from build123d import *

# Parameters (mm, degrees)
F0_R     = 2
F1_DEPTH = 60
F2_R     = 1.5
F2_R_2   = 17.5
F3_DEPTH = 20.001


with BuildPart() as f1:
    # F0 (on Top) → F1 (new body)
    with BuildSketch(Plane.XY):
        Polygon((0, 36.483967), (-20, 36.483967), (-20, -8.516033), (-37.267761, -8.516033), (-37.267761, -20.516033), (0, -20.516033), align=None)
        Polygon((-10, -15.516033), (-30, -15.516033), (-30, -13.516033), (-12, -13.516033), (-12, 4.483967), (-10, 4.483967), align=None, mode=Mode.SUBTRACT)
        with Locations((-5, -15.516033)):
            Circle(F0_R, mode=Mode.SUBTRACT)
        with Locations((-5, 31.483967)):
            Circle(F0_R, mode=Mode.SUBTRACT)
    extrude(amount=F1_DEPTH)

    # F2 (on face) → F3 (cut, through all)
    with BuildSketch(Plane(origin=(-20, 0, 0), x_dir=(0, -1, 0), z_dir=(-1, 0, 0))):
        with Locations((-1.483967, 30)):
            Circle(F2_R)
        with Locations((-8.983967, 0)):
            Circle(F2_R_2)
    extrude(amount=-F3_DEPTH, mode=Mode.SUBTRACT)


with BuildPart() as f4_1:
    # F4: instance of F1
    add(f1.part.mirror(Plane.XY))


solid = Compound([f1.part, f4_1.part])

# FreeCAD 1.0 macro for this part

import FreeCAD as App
import Part
import Sketcher
Q = App.Units.Quantity


def add_polygon(sketch, points):
    """Adds a closed chain of lines whose ends are joined by coincident constraints."""
    first, n = sketch.GeometryCount, len(points)
    for a, b in zip(points, points[1:] + points[:1]):
        sketch.addGeometry(Part.LineSegment(App.Vector(*a, 0), App.Vector(*b, 0)), False)
    for i in range(n):
        sketch.addConstraint(Sketcher.Constraint("Coincident", first + i, 2, first + (i + 1) % n, 1))

doc = App.newDocument("Part")
body = doc.addObject("PartDesign::Body", "Body")

# Sketch on XY plane
sketch1 = doc.addObject("Sketcher::SketchObject", "Sketch")
body.addObject(sketch1)
sketch1.AttachmentSupport = (doc.XY_Plane, [""])
sketch1.MapMode = "FlatFace"
add_polygon(sketch1, [(0, 36.483967), (-20, 36.483967), (-20, -8.516033), (-37.267761, -8.516033), (-37.267761, -20.516033), (0, -20.516033)])  # lines 0-5
add_polygon(sketch1, [(-10, 4.483967), (-10, -15.516033), (-30, -15.516033), (-30, -13.516033), (-12, -13.516033), (-12, 4.483967)])  # lines 6-11
sketch1.addGeometry(Part.Circle(App.Vector(-5, -15.516033, 0), App.Vector(0, 0, 1), 2), False)  # 12
sketch1.addGeometry(Part.Circle(App.Vector(-5, 31.483967, 0), App.Vector(0, 0, 1), 2), False)  # 13
sketch1.addConstraint([
    Sketcher.Constraint("Horizontal", 0),
    Sketcher.Constraint("Vertical", 1),
    Sketcher.Constraint("Horizontal", 2),
    Sketcher.Constraint("Vertical", 3),
    Sketcher.Constraint("Horizontal", 4),
    Sketcher.Constraint("Vertical", 5),
    Sketcher.Constraint("Vertical", 6),
    Sketcher.Constraint("Horizontal", 7),
    Sketcher.Constraint("Vertical", 8),
    Sketcher.Constraint("Horizontal", 9),
    Sketcher.Constraint("Vertical", 10),
    Sketcher.Constraint("Horizontal", 11),
    Sketcher.Constraint("Equal", 12, 13),
    Sketcher.Constraint("PointOnObject", 4, 2, -2),
    Sketcher.Constraint("Horizontal", 12, 3, 6, 2),
    Sketcher.Constraint("Vertical", 12, 3, 13, 3),
    Sketcher.Constraint("Equal", 0, 7),
    Sketcher.Constraint("Equal", 7, 6),
    Sketcher.Constraint("Equal", 11, 8),
    Sketcher.Constraint("Diameter", 12, Q("4 mm")),
    Sketcher.Constraint("DistanceX", 0, 2, 0, 1, Q("20 mm")),
    Sketcher.Constraint("DistanceX", 9, 1, 9, 2, Q("18 mm")),
    Sketcher.Constraint("DistanceY", 1, 2, 1, 1, Q("45 mm")),
    Sketcher.Constraint("DistanceY", 3, 2, 3, 1, Q("12 mm")),
    Sketcher.Constraint("DistanceX", 12, 3, -1, 1, Q("5 mm")),
    Sketcher.Constraint("DistanceX", 6, 2, -1, 1, Q("10 mm")),
    Sketcher.Constraint("DistanceY", 12, 3, 13, 3, Q("47 mm")),
    Sketcher.Constraint("DistanceY", 13, 3, 0, 2, Q("5 mm")),
    Sketcher.Constraint("DistanceX", 2, 2, 2, 1, Q("17.267761 mm")),
    Sketcher.Constraint("DistanceY", 12, 3, -1, 1, Q("15.516033 mm")),
])
pad1 = doc.addObject("PartDesign::Pad", "Pad")
body.addObject(pad1)
pad1.Profile = sketch1
pad1.Length = 60

# Sketch on YZ plane
sketch2 = doc.addObject("Sketcher::SketchObject", "Sketch001")
body.addObject(sketch2)
sketch2.AttachmentSupport = (doc.YZ_Plane, [""])
sketch2.MapMode = "FlatFace"
sketch2.AttachmentOffset = App.Placement(App.Vector(0, 0, -20), App.Rotation())
sketch2.addGeometry([
    Part.Circle(App.Vector(1.483967, 30, 0), App.Vector(0, 0, 1), 1.5),
    Part.Circle(App.Vector(8.983967, 0, 0), App.Vector(0, 0, 1), 17.5),
], False)
sketch2.addConstraint([
    Sketcher.Constraint("PointOnObject", 1, 3, -1),
    Sketcher.Constraint("Diameter", 0, Q("3 mm")),
    Sketcher.Constraint("Diameter", 1, Q("35 mm")),
    Sketcher.Constraint("DistanceY", -1, 1, 0, 3, Q("30 mm")),
    Sketcher.Constraint("DistanceX", 0, 3, 1, 3, Q("7.5 mm")),
    Sketcher.Constraint("DistanceX", -1, 1, 0, 3, Q("1.483967 mm")),
])
pocket1 = doc.addObject("PartDesign::Pocket", "Pocket")
body.addObject(pocket1)
pocket1.Profile = sketch2
pocket1.Type = "ThroughAll"
pocket1.Reversed = True
body2 = doc.addObject("PartDesign::Body", "Body001")
doc.recompute()

mirroring = doc.addObject("Part::Mirroring", "Mirroring")
mirroring.Source = body
mirroring.Base = App.Vector(0, 0, 0)
mirroring.Normal = App.Vector(0, 0, 1)
body2.BaseFeature = mirroring
doc.recompute()
mirroring.Visibility = False

doc.recompute()
